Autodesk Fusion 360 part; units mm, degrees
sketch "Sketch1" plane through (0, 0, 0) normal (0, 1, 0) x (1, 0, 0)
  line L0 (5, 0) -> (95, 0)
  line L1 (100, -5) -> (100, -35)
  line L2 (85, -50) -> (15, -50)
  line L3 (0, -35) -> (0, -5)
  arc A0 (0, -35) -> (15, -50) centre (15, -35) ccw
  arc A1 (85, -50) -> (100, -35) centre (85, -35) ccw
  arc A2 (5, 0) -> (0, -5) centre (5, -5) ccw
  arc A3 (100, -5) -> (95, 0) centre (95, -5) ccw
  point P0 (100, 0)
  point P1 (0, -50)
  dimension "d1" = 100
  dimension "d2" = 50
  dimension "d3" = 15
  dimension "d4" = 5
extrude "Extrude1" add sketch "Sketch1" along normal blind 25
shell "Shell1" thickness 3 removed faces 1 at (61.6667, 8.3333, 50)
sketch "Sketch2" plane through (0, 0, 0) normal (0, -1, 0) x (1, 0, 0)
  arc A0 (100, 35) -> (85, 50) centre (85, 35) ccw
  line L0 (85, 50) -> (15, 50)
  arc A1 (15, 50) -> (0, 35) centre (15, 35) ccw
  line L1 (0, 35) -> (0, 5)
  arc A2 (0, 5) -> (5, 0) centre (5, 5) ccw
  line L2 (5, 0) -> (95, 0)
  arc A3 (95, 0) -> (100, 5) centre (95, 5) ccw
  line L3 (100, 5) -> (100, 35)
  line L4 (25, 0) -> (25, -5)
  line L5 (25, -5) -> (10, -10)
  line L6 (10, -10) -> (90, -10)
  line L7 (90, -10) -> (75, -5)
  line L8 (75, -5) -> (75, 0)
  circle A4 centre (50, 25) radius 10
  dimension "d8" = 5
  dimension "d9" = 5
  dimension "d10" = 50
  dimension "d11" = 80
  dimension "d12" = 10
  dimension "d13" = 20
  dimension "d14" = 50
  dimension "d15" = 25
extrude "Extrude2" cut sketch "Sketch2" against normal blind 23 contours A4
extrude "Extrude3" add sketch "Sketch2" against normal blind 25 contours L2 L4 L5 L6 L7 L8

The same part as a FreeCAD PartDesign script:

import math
import FreeCAD as App
import Part
import Sketcher
Q = App.Units.Quantity


def faces_at(feature, points):
    """Names of the faces that lie closest to the given points."""
    faces = feature.Shape.Faces
    near = lambda p: min(range(len(faces)), key=lambda i: faces[i].distToShape(Part.Vertex(*p))[0])
    return sorted({f"Face{near(p) + 1}" for p in points})

doc = App.newDocument("Part")
body = doc.addObject("PartDesign::Body", "Body")

sketch1 = body.newObject("Sketcher::SketchObject", "Sketch")
sketch1.AttachmentSupport = (doc.getObject("XZ_Plane"), [""])
sketch1.MapMode = "FlatFace"
sketch1.addGeometry([
    Part.LineSegment(App.Vector(95, 0, 0), App.Vector(5, 0, 0)),
    Part.ArcOfCircle(Part.Circle(App.Vector(5, 5, 0), App.Vector(0, 0, 1), 5), math.radians(180), math.radians(270)),
    Part.LineSegment(App.Vector(0, 5, 0), App.Vector(0, 35, 0)),
    Part.ArcOfCircle(Part.Circle(App.Vector(15, 35, 0), App.Vector(0, 0, 1), 15), math.radians(90), math.radians(180)),
    Part.LineSegment(App.Vector(15, 50, 0), App.Vector(85, 50, 0)),
    Part.ArcOfCircle(Part.Circle(App.Vector(85, 35, 0), App.Vector(0, 0, 1), 15), math.radians(0), math.radians(90)),
    Part.LineSegment(App.Vector(100, 35, 0), App.Vector(100, 5, 0)),
    Part.ArcOfCircle(Part.Circle(App.Vector(95, 5, 0), App.Vector(0, 0, 1), 5), math.radians(-90), math.radians(0)),
], False)
sketch1.addConstraint([
    Sketcher.Constraint("Tangent", 0, 2, 1, 2),
    Sketcher.Constraint("Tangent", 1, 1, 2, 1),
    Sketcher.Constraint("Tangent", 2, 2, 3, 2),
    Sketcher.Constraint("Tangent", 3, 1, 4, 1),
    Sketcher.Constraint("Tangent", 4, 2, 5, 2),
    Sketcher.Constraint("Tangent", 5, 1, 6, 1),
    Sketcher.Constraint("Tangent", 6, 2, 7, 2),
    Sketcher.Constraint("Tangent", 7, 1, 0, 1),
    Sketcher.Constraint("Horizontal", 0),
    Sketcher.Constraint("Vertical", 2),
    Sketcher.Constraint("Horizontal", 4),
    Sketcher.Constraint("Vertical", 6),
    Sketcher.Constraint("Equal", 3, 5),
    Sketcher.Constraint("Equal", 1, 7),
    Sketcher.Constraint("PointOnObject", 0, 2, -1),
    Sketcher.Constraint("PointOnObject", 1, 1, -2),
    Sketcher.Constraint("Radius", 1, Q("5 mm")),
    Sketcher.Constraint("Radius", 3, Q("15 mm")),
    Sketcher.Constraint("DistanceY", -1, 1, 3, 1, Q("50 mm")),
    Sketcher.Constraint("DistanceX", -1, 1, 5, 1, Q("100 mm")),
])
pad1 = body.newObject("PartDesign::Pad", "Pad")
pad1.Profile = sketch1
pad1.Length = 25
pad1.Reversed = True
doc.recompute()

thickness = body.newObject("PartDesign::Thickness", "Thickness")
thickness.Base = (pad1, faces_at(pad1, [(61.667, 8.333, 50)]))
thickness.Value = 3
thickness.Reversed = True
thickness.Join = "Intersection"

sketch2 = body.newObject("Sketcher::SketchObject", "Sketch001")
sketch2.AttachmentSupport = (doc.getObject("XZ_Plane"), [""])
sketch2.MapMode = "FlatFace"
sketch2.addGeometry(Part.Circle(App.Vector(50, 25, 0), App.Vector(0, 0, 1), 10), False)
sketch2.addConstraint([
    Sketcher.Constraint("Diameter", 0, Q("20 mm")),
    Sketcher.Constraint("DistanceX", -1, 1, 0, 3, Q("50 mm")),
    Sketcher.Constraint("DistanceY", -1, 1, 0, 3, Q("25 mm")),
])
pocket1 = body.newObject("PartDesign::Pocket", "Pocket")
pocket1.Profile = sketch2
pocket1.Length = 23

sketch3 = body.newObject("Sketcher::SketchObject", "Sketch002")
sketch3.AttachmentSupport = (doc.getObject("XZ_Plane"), [""])
sketch3.MapMode = "FlatFace"
sketch3.addGeometry([
    Part.LineSegment(App.Vector(75, -5, 0), App.Vector(75, 0, 0)),
    Part.LineSegment(App.Vector(75, 0, 0), App.Vector(25, 0, 0)),
    Part.LineSegment(App.Vector(25, 0, 0), App.Vector(25, -5, 0)),
    Part.LineSegment(App.Vector(25, -5, 0), App.Vector(10, -10, 0)),
    Part.LineSegment(App.Vector(10, -10, 0), App.Vector(90, -10, 0)),
    Part.LineSegment(App.Vector(90, -10, 0), App.Vector(75, -5, 0)),
], False)
sketch3.addConstraint([
    Sketcher.Constraint("Coincident", 0, 2, 1, 1),
    Sketcher.Constraint("Coincident", 1, 2, 2, 1),
    Sketcher.Constraint("Coincident", 2, 2, 3, 1),
    Sketcher.Constraint("Coincident", 3, 2, 4, 1),
    Sketcher.Constraint("Coincident", 4, 2, 5, 1),
    Sketcher.Constraint("Coincident", 5, 2, 0, 1),
    Sketcher.Constraint("Vertical", 0),
    Sketcher.Constraint("Horizontal", 1),
    Sketcher.Constraint("Vertical", 2),
    Sketcher.Constraint("Horizontal", 4),
    Sketcher.Constraint("PointOnObject", 0, 2, -1),
    Sketcher.Constraint("Horizontal", 2, 2, 5, 2),
    Sketcher.Constraint("Equal", 3, 5),
    Sketcher.Constraint("DistanceX", 1, 2, 1, 1, Q("50 mm")),
    Sketcher.Constraint("DistanceX", 4, 1, 4, 2, Q("80 mm")),
    Sketcher.Constraint("DistanceY", 0, 1, 0, 2, Q("5 mm")),
    Sketcher.Constraint("DistanceX", -1, 1, 1, 2, Q("25 mm")),
    Sketcher.Constraint("DistanceY", 3, 2, -1, 1, Q("10 mm")),
])
pad2 = body.newObject("PartDesign::Pad", "Pad001")
pad2.Profile = sketch3
pad2.Length = 25
pad2.Reversed = True

doc.recompute()
